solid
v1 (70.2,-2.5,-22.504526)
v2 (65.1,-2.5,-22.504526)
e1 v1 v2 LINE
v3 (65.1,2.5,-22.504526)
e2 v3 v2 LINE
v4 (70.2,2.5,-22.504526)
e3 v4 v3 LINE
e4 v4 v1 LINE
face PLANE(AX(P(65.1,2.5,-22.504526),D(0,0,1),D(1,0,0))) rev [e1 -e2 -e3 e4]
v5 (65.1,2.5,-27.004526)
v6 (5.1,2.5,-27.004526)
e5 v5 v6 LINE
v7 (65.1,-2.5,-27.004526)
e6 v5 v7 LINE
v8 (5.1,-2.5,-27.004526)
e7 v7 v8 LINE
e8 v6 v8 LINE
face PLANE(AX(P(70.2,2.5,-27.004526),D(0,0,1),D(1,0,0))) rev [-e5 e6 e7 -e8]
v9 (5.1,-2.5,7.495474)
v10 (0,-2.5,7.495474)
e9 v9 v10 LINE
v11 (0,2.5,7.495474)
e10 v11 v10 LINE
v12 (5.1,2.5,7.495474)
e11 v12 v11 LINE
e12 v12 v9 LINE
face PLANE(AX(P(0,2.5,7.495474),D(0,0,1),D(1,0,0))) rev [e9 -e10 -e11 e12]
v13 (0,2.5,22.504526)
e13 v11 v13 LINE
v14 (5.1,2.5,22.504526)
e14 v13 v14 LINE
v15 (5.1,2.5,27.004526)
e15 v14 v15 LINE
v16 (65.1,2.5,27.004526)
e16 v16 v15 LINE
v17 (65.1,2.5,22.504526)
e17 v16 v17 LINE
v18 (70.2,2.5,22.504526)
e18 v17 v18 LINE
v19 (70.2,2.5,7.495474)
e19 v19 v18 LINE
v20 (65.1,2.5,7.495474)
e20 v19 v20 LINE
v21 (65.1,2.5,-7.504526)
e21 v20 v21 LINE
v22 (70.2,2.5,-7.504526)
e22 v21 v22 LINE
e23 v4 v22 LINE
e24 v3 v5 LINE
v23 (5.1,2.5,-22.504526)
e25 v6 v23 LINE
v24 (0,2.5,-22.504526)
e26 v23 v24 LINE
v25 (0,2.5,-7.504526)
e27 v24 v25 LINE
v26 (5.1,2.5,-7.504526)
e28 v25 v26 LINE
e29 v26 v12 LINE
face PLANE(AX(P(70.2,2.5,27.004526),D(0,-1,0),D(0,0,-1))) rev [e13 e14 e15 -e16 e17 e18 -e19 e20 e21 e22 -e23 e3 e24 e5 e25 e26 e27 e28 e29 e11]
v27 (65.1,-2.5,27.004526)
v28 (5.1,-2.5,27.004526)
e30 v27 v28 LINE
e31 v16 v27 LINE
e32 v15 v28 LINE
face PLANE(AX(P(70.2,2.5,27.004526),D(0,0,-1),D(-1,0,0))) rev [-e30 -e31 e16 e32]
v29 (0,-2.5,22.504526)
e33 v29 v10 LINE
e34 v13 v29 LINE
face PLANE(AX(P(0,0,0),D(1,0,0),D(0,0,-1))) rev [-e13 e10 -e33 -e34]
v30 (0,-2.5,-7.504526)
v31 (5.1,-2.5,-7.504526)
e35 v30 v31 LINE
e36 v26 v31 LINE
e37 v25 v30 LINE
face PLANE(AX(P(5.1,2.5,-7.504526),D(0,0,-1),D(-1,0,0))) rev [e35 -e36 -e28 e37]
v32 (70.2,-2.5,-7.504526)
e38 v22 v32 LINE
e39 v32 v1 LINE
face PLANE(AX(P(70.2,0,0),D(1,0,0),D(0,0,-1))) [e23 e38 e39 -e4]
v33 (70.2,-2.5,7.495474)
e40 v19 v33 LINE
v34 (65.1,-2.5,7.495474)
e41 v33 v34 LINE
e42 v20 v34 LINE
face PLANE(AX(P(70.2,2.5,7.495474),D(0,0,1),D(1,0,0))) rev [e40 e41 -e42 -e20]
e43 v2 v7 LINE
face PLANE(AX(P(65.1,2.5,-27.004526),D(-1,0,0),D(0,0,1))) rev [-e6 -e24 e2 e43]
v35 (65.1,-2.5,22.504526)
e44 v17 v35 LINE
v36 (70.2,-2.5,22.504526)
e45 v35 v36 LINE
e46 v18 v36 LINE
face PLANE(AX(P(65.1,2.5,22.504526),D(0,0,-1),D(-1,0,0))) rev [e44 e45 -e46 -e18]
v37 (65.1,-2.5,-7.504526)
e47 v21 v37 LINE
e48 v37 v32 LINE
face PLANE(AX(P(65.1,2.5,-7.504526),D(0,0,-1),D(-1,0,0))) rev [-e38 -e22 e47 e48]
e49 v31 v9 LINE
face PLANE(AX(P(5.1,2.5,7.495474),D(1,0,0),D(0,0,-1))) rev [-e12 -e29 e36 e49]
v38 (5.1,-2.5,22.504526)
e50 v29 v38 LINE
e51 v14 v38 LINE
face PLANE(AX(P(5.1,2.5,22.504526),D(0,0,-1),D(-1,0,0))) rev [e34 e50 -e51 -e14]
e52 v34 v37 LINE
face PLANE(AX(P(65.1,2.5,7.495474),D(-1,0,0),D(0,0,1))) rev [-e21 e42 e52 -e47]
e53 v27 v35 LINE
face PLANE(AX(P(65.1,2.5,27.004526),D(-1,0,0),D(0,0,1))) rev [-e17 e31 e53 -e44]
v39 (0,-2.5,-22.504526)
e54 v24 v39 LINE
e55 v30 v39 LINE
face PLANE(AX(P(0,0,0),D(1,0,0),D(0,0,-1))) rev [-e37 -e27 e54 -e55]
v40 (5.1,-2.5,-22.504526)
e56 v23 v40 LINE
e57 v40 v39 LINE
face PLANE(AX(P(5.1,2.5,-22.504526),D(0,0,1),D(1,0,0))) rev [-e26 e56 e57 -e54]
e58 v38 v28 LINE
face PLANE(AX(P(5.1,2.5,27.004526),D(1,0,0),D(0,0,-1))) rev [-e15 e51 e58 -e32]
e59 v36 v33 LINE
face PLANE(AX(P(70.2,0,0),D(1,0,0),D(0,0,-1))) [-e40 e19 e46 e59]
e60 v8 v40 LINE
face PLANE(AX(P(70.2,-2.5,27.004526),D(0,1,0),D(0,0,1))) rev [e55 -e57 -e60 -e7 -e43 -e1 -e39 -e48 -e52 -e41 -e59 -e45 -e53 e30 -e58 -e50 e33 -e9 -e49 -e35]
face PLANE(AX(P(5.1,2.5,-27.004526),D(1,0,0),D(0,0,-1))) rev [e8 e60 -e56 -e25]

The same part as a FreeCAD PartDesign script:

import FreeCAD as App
import Part
import Sketcher
from FreeCAD import Vector
Q = App.Units.Quantity

doc = App.newDocument("Part")
body = doc.addObject("PartDesign::Body", "Body")

# Sketch on YZ plane
sketch1 = body.newObject("Sketcher::SketchObject", "Sketch")
sketch1.AttachmentSupport = (doc.getObject("YZ_Plane"), [""])
sketch1.MapMode = "FlatFace"
sketch1.addGeometry(Part.LineSegment(Vector(2, 27, 0), Vector(-2, 27, 0)), False)
sketch1.addGeometry(Part.LineSegment(Vector(-2, 27, 0), Vector(-2, -27, 0)), False)
sketch1.addGeometry(Part.LineSegment(Vector(-2, -27, 0), Vector(2, -27, 0)), False)
sketch1.addGeometry(Part.LineSegment(Vector(2, -27, 0), Vector(2, 27, 0)), False)
sketch1.addConstraint(Sketcher.Constraint("Coincident", 0, 2, 1, 1))
sketch1.addConstraint(Sketcher.Constraint("Coincident", 1, 2, 2, 1))
sketch1.addConstraint(Sketcher.Constraint("Coincident", 2, 2, 3, 1))
sketch1.addConstraint(Sketcher.Constraint("Coincident", 3, 2, 0, 1))
sketch1.addConstraint(Sketcher.Constraint("Horizontal", 0))
sketch1.addConstraint(Sketcher.Constraint("Vertical", 1))
sketch1.addConstraint(Sketcher.Constraint("Horizontal", 2))
sketch1.addConstraint(Sketcher.Constraint("Vertical", 3))
sketch1.addConstraint(Sketcher.Constraint("Symmetric", 0, 2, 2, 2, -1, 1))
sketch1.addConstraint(Sketcher.Constraint("DistanceX", 0, 2, 0, 1, Q("5 mm")))
sketch1.addConstraint(Sketcher.Constraint("DistanceY", 1, 2, 1, 1, Q("54.009051 mm")))
pad1 = body.newObject("PartDesign::Pad", "Pad")
pad1.Profile = sketch1
pad1.Length = 70.2

# Sketch on XZ plane
sketch2 = body.newObject("Sketcher::SketchObject", "Sketch001")
sketch2.AttachmentSupport = (doc.getObject("XZ_Plane"), [""])
sketch2.MapMode = "FlatFace"
sketch2.AttachmentOffset = App.Placement(Vector(0, 0, 2.5), App.Rotation())
sketch2.addGeometry(Part.LineSegment(Vector(65.1, 27, 0), Vector(65.1, 22.5, 0)), False)
sketch2.addGeometry(Part.LineSegment(Vector(65.1, 22.5, 0), Vector(70.2, 22.5, 0)), False)
sketch2.addGeometry(Part.LineSegment(Vector(70.2, 22.5, 0), Vector(70.2, 27, 0)), False)
sketch2.addGeometry(Part.LineSegment(Vector(70.2, 27, 0), Vector(65.1, 27, 0)), False)
sketch2.addGeometry(Part.LineSegment(Vector(65.1, -22.5, 0), Vector(65.1, -27, 0)), False)
sketch2.addGeometry(Part.LineSegment(Vector(65.1, -27, 0), Vector(70.2, -27, 0)), False)
sketch2.addGeometry(Part.LineSegment(Vector(70.2, -27, 0), Vector(70.2, -22.5, 0)), False)
sketch2.addGeometry(Part.LineSegment(Vector(70.2, -22.5, 0), Vector(65.1, -22.5, 0)), False)
sketch2.addGeometry(Part.LineSegment(Vector(65.1, 7.5, 0), Vector(65.1, -7.5, 0)), False)
sketch2.addGeometry(Part.LineSegment(Vector(65.1, -7.5, 0), Vector(70.2, -7.5, 0)), False)
sketch2.addGeometry(Part.LineSegment(Vector(70.2, -7.5, 0), Vector(70.2, 7.5, 0)), False)
sketch2.addGeometry(Part.LineSegment(Vector(70.2, 7.5, 0), Vector(65.1, 7.5, 0)), False)
sketch2.addGeometry(Part.LineSegment(Vector(0, -22.5, 0), Vector(0, -27, 0)), False)
sketch2.addGeometry(Part.LineSegment(Vector(0, -27, 0), Vector(5.1, -27, 0)), False)
sketch2.addGeometry(Part.LineSegment(Vector(5.1, -27, 0), Vector(5.1, -22.5, 0)), False)
sketch2.addGeometry(Part.LineSegment(Vector(5.1, -22.5, 0), Vector(0, -22.5, 0)), False)
sketch2.addGeometry(Part.LineSegment(Vector(0, 7.5, 0), Vector(0, -7.5, 0)), False)
sketch2.addGeometry(Part.LineSegment(Vector(0, -7.5, 0), Vector(5.1, -7.5, 0)), False)
sketch2.addGeometry(Part.LineSegment(Vector(5.1, -7.5, 0), Vector(5.1, 7.5, 0)), False)
sketch2.addGeometry(Part.LineSegment(Vector(5.1, 7.5, 0), Vector(0, 7.5, 0)), False)
sketch2.addGeometry(Part.LineSegment(Vector(0, 27, 0), Vector(0, 22.5, 0)), False)
sketch2.addGeometry(Part.LineSegment(Vector(0, 22.5, 0), Vector(5.1, 22.5, 0)), False)
sketch2.addGeometry(Part.LineSegment(Vector(5.1, 22.5, 0), Vector(5.1, 27, 0)), False)
sketch2.addGeometry(Part.LineSegment(Vector(5.1, 27, 0), Vector(0, 27, 0)), False)
sketch2.addConstraint(Sketcher.Constraint("Coincident", 0, 2, 1, 1))
sketch2.addConstraint(Sketcher.Constraint("Coincident", 1, 2, 2, 1))
sketch2.addConstraint(Sketcher.Constraint("Coincident", 2, 2, 3, 1))
sketch2.addConstraint(Sketcher.Constraint("Coincident", 3, 2, 0, 1))
sketch2.addConstraint(Sketcher.Constraint("Coincident", 4, 2, 5, 1))
sketch2.addConstraint(Sketcher.Constraint("Coincident", 5, 2, 6, 1))
sketch2.addConstraint(Sketcher.Constraint("Coincident", 6, 2, 7, 1))
sketch2.addConstraint(Sketcher.Constraint("Coincident", 7, 2, 4, 1))
sketch2.addConstraint(Sketcher.Constraint("Coincident", 8, 2, 9, 1))
sketch2.addConstraint(Sketcher.Constraint("Coincident", 9, 2, 10, 1))
sketch2.addConstraint(Sketcher.Constraint("Coincident", 10, 2, 11, 1))
sketch2.addConstraint(Sketcher.Constraint("Coincident", 11, 2, 8, 1))
sketch2.addConstraint(Sketcher.Constraint("Coincident", 12, 2, 13, 1))
sketch2.addConstraint(Sketcher.Constraint("Coincident", 13, 2, 14, 1))
sketch2.addConstraint(Sketcher.Constraint("Coincident", 14, 2, 15, 1))
sketch2.addConstraint(Sketcher.Constraint("Coincident", 15, 2, 12, 1))
sketch2.addConstraint(Sketcher.Constraint("Coincident", 16, 2, 17, 1))
sketch2.addConstraint(Sketcher.Constraint("Coincident", 17, 2, 18, 1))
sketch2.addConstraint(Sketcher.Constraint("Coincident", 18, 2, 19, 1))
sketch2.addConstraint(Sketcher.Constraint("Coincident", 19, 2, 16, 1))
sketch2.addConstraint(Sketcher.Constraint("Coincident", 20, 2, 21, 1))
sketch2.addConstraint(Sketcher.Constraint("Coincident", 21, 2, 22, 1))
sketch2.addConstraint(Sketcher.Constraint("Coincident", 22, 2, 23, 1))
sketch2.addConstraint(Sketcher.Constraint("Coincident", 23, 2, 20, 1))
sketch2.addConstraint(Sketcher.Constraint("Vertical", 0))
sketch2.addConstraint(Sketcher.Constraint("Horizontal", 1))
sketch2.addConstraint(Sketcher.Constraint("Vertical", 2))
sketch2.addConstraint(Sketcher.Constraint("Horizontal", 3))
sketch2.addConstraint(Sketcher.Constraint("Vertical", 4))
sketch2.addConstraint(Sketcher.Constraint("Horizontal", 5))
sketch2.addConstraint(Sketcher.Constraint("Vertical", 6))
sketch2.addConstraint(Sketcher.Constraint("Horizontal", 7))
sketch2.addConstraint(Sketcher.Constraint("Vertical", 8))
sketch2.addConstraint(Sketcher.Constraint("Horizontal", 9))
sketch2.addConstraint(Sketcher.Constraint("Vertical", 10))
sketch2.addConstraint(Sketcher.Constraint("Horizontal", 11))
sketch2.addConstraint(Sketcher.Constraint("Vertical", 12))
sketch2.addConstraint(Sketcher.Constraint("Horizontal", 13))
sketch2.addConstraint(Sketcher.Constraint("Vertical", 14))
sketch2.addConstraint(Sketcher.Constraint("Horizontal", 15))
sketch2.addConstraint(Sketcher.Constraint("Vertical", 16))
sketch2.addConstraint(Sketcher.Constraint("Horizontal", 17))
sketch2.addConstraint(Sketcher.Constraint("Vertical", 18))
sketch2.addConstraint(Sketcher.Constraint("Horizontal", 19))
sketch2.addConstraint(Sketcher.Constraint("Vertical", 20))
sketch2.addConstraint(Sketcher.Constraint("Horizontal", 21))
sketch2.addConstraint(Sketcher.Constraint("Vertical", 22))
sketch2.addConstraint(Sketcher.Constraint("Horizontal", 23))
sketch2.addConstraint(Sketcher.Constraint("Symmetric", 15, 2, 20, 2, -1, 1))
sketch2.addConstraint(Sketcher.Constraint("Symmetric", 3, 2, 4, 2, -1))
sketch2.addConstraint(Sketcher.Constraint("Symmetric", 1, 2, 6, 2, -1))
sketch2.addConstraint(Sketcher.Constraint("Symmetric", 13, 2, 22, 2, -1))
sketch2.addConstraint(Sketcher.Constraint("PointOnObject", 12, 2, -2))
sketch2.addConstraint(Sketcher.Constraint("PointOnObject", 16, 2, -2))
sketch2.addConstraint(Sketcher.Constraint("Horizontal", 5, 2, 12, 2))
sketch2.addConstraint(Sketcher.Constraint("Horizontal", 7, 2, 14, 2))
sketch2.addConstraint(Sketcher.Constraint("Horizontal", 9, 2, 16, 2))
sketch2.addConstraint(Sketcher.Constraint("Horizontal", 11, 2, 18, 2))
sketch2.addConstraint(Sketcher.Constraint("Vertical", 7, 2, 8, 2))
sketch2.addConstraint(Sketcher.Constraint("Vertical", 6, 2, 9, 2))
sketch2.addConstraint(Sketcher.Constraint("Vertical", 14, 2, 17, 2))
sketch2.addConstraint(Sketcher.Constraint("Equal", 11, 13))
sketch2.addConstraint(Sketcher.Constraint("DistanceY", 8, 2, 8, 1, Q("15 mm")))
sketch2.addConstraint(Sketcher.Constraint("DistanceX", 1, 1, 1, 2, Q("5.1 mm")))
sketch2.addConstraint(Sketcher.Constraint("DistanceY", 0, 2, 0, 1, Q("4.5 mm")))
sketch2.addConstraint(Sketcher.Constraint("DistanceY", 7, 2, 8, 2, Q("15 mm")))
sketch2.addConstraint(Sketcher.Constraint("DistanceX", 13, 2, 4, 2, Q("60 mm")))
sketch2.addConstraint(Sketcher.Constraint("DistanceY", 4, 2, 0, 2, Q("49.509051 mm")))
pocket1 = body.newObject("PartDesign::Pocket", "Pocket")
pocket1.Profile = sketch2
pocket1.Type = "ThroughAll"

doc.recompute()
